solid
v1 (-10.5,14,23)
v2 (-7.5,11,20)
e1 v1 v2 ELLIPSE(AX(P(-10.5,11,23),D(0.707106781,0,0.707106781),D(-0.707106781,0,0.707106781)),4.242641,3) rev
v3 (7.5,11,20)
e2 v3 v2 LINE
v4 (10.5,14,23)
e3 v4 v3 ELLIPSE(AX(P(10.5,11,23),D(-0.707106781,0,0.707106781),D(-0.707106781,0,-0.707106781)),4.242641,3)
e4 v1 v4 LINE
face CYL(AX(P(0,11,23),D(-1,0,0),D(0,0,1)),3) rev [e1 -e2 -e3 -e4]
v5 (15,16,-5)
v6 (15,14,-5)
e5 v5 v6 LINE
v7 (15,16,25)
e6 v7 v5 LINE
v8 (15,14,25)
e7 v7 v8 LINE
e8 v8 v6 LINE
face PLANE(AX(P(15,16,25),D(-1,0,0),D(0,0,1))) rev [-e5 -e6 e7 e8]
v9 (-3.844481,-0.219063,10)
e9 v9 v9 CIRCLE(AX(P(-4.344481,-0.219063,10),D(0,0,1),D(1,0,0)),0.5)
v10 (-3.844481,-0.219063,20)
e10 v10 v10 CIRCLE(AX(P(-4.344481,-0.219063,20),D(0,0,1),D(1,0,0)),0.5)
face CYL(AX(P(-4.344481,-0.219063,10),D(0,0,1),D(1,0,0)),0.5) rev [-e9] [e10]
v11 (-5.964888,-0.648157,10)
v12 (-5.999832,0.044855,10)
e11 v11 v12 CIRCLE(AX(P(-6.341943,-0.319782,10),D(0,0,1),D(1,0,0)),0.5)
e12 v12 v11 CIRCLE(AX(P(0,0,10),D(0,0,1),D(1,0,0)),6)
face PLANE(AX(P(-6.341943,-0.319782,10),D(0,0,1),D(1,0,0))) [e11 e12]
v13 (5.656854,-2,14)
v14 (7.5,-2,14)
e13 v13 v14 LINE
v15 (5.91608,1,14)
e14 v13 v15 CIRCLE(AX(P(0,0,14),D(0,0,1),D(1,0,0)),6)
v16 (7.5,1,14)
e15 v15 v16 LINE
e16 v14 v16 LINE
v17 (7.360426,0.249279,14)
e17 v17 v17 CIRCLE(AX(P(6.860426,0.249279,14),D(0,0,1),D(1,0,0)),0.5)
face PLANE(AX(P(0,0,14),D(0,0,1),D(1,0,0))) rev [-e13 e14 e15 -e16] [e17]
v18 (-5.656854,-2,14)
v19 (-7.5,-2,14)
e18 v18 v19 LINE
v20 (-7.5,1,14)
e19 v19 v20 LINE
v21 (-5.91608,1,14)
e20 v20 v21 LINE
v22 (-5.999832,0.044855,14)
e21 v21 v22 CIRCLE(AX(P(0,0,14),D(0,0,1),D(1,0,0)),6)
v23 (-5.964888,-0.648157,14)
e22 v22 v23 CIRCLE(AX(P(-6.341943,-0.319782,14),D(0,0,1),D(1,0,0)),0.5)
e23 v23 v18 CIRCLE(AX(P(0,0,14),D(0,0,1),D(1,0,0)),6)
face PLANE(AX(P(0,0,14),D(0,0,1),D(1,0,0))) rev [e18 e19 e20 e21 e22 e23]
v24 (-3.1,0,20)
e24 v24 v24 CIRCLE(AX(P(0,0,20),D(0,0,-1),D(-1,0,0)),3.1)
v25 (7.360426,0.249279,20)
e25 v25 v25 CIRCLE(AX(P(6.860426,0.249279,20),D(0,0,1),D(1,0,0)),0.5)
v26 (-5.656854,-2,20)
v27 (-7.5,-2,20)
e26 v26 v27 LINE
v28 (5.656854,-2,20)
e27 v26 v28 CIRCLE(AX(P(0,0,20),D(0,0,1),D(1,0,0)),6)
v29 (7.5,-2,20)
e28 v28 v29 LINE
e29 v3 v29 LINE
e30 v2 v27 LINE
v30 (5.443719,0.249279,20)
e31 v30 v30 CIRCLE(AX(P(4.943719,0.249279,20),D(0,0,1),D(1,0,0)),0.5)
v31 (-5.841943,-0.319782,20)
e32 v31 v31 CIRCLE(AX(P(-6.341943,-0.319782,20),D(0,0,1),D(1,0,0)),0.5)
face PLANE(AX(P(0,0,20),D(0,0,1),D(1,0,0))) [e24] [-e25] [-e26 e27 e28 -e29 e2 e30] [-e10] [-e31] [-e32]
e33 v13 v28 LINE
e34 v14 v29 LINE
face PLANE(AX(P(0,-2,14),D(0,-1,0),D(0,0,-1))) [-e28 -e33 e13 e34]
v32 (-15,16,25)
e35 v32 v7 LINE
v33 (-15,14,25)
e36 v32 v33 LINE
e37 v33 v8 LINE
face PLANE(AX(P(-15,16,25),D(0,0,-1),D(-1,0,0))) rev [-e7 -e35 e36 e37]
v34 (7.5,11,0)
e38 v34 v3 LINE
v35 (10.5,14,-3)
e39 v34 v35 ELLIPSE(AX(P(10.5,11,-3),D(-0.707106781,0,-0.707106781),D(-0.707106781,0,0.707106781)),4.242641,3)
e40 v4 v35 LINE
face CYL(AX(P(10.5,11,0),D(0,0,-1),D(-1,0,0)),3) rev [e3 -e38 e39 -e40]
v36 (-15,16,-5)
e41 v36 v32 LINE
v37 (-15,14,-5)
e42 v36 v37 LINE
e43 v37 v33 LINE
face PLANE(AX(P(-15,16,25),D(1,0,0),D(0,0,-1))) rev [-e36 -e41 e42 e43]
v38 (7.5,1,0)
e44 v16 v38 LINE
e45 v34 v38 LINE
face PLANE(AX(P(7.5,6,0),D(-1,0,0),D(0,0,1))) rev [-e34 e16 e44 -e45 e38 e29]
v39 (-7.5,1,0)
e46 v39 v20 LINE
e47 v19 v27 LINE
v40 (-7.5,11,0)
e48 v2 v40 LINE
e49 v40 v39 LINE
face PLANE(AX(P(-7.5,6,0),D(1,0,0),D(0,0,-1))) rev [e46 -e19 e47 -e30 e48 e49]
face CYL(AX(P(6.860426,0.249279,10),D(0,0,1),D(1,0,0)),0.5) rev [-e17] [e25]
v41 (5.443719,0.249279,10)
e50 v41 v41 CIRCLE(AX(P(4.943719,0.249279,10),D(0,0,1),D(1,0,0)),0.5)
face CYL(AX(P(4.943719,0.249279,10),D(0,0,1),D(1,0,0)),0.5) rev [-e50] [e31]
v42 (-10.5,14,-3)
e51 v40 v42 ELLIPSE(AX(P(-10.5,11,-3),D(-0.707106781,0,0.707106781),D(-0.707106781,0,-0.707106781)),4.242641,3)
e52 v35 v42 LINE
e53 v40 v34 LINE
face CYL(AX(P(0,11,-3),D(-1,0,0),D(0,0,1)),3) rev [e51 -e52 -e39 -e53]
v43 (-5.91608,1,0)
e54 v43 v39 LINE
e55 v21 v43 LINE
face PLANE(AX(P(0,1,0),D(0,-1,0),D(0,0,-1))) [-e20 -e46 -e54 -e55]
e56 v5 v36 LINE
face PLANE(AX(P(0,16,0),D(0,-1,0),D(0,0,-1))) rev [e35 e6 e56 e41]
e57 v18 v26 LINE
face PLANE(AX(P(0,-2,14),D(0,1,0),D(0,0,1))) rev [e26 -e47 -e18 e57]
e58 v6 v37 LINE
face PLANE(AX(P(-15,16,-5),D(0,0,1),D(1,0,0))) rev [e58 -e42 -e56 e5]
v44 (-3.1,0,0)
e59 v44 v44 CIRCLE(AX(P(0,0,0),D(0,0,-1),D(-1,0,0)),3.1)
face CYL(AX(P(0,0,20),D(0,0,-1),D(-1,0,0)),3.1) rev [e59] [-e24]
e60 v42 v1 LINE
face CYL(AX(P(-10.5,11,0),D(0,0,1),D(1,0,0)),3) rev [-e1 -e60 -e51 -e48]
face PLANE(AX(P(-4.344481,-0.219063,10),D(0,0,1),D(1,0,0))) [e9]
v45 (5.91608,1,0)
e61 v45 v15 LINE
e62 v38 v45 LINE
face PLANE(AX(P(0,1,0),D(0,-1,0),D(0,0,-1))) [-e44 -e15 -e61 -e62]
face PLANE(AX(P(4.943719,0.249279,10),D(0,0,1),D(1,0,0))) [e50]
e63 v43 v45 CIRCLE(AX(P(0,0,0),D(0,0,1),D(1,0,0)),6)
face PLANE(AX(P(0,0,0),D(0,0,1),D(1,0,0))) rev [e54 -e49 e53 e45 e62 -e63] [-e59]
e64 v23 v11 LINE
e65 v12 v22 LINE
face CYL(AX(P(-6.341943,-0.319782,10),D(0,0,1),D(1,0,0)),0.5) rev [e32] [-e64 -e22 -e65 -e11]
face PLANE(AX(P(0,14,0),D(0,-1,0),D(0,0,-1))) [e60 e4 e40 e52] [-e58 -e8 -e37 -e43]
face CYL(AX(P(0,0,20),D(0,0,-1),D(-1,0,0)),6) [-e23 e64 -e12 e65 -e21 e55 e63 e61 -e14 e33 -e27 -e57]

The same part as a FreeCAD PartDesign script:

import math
import FreeCAD as App
import Part
import Sketcher
from FreeCAD import Vector
Q = App.Units.Quantity


def edges_at(feature, points):
    """Names of the edges that pass closest to the given points."""
    edges = feature.Shape.Edges
    near = lambda p: min(range(len(edges)), key=lambda i: edges[i].distToShape(Part.Vertex(*p))[0])
    return sorted({f"Edge{near(p) + 1}" for p in points})

doc = App.newDocument("Part")
params = doc.addObject("Spreadsheet::Sheet", "Params")
for row, (alias, value) in enumerate([
    ("sketch1_diameter", "12 mm"),
    ("pad1_length", "20 mm"),
    ("sketch2_width", "15 mm"),
    ("sketch2_height", "20 mm"),
    ("pad2_length", "5 mm"),
    ("sketch3_diameter", "6.2 mm"),
    ("sketch4_radius", "6 mm"),
    ("sketch4_height", "3 mm"),
    ("pad3_length", "6 mm"),
    ("sketch5_diameter", "1 mm"),
    ("pocket2_length", "10 mm"),
    ("sketch6_width", "15 mm"),
    ("sketch6_height", "20 mm"),
    ("pad4_length", "8 mm"),
    ("sketch7_width", "30 mm"),
    ("pad5_length", "2 mm"),
    ("fillet_radius", "3 mm"),
], start=1):
    params.set(f"A{row}", alias)
    params.set(f"B{row}", "=" + value)
    params.setAlias(f"B{row}", alias)

body = doc.addObject("PartDesign::Body", "Body")

# Sketch on XY plane
sketch1 = doc.addObject("Sketcher::SketchObject", "Sketch")
body.addObject(sketch1)
sketch1.AttachmentSupport = (doc.XY_Plane, [""])
sketch1.MapMode = "FlatFace"
sketch1.addGeometry(Part.Circle(Vector(0, 0, 0), Vector(0, 0, 1), 6), False)
sketch1.addConstraint(Sketcher.Constraint("Coincident", 0, 3, -1, 1))
sketch1.addConstraint(Sketcher.Constraint("Diameter", 0, Q("12 mm")))
sketch1.setExpression("Constraints[1]", "Params.sketch1_diameter")
pad1 = doc.addObject("PartDesign::Pad", "Pad")
body.addObject(pad1)
pad1.Profile = sketch1
pad1.setExpression("Length", "Params.pad1_length")

# Sketch on XZ plane
sketch2 = doc.addObject("Sketcher::SketchObject", "Sketch001")
body.addObject(sketch2)
sketch2.AttachmentSupport = (doc.XZ_Plane, [""])
sketch2.MapMode = "FlatFace"
sketch2.AttachmentOffset = App.Placement(Vector(0, 0, -1), App.Rotation())
sketch2.addGeometry(Part.LineSegment(Vector(-8, 0, 0), Vector(-8, 20, 0)), False)
sketch2.addGeometry(Part.LineSegment(Vector(-8, 20, 0), Vector(8, 20, 0)), False)
sketch2.addGeometry(Part.LineSegment(Vector(8, 20, 0), Vector(8, 0, 0)), False)
sketch2.addGeometry(Part.LineSegment(Vector(8, 0, 0), Vector(-8, 0, 0)), False)
sketch2.addConstraint(Sketcher.Constraint("Coincident", 0, 2, 1, 1))
sketch2.addConstraint(Sketcher.Constraint("Coincident", 1, 2, 2, 1))
sketch2.addConstraint(Sketcher.Constraint("Coincident", 2, 2, 3, 1))
sketch2.addConstraint(Sketcher.Constraint("Coincident", 3, 2, 0, 1))
sketch2.addConstraint(Sketcher.Constraint("Vertical", 0))
sketch2.addConstraint(Sketcher.Constraint("Horizontal", 1))
sketch2.addConstraint(Sketcher.Constraint("Vertical", 2))
sketch2.addConstraint(Sketcher.Constraint("Horizontal", 3))
sketch2.addConstraint(Sketcher.Constraint("Symmetric", 2, 2, 3, 2, -1, 1))
sketch2.addConstraint(Sketcher.Constraint("DistanceX", 1, 1, 1, 2, Q("15 mm")))
sketch2.addConstraint(Sketcher.Constraint("DistanceY", 0, 1, 0, 2, Q("20 mm")))
sketch2.setExpression("Constraints[9]", "Params.sketch2_width")
sketch2.setExpression("Constraints[10]", "Params.sketch2_height")
pad2 = doc.addObject("PartDesign::Pad", "Pad001")
body.addObject(pad2)
pad2.Profile = sketch2
pad2.setExpression("Length", "Params.pad2_length")
pad2.Reversed = True

# Sketch on XY plane
sketch3 = doc.addObject("Sketcher::SketchObject", "Sketch002")
body.addObject(sketch3)
sketch3.AttachmentSupport = (doc.XY_Plane, [""])
sketch3.MapMode = "FlatFace"
sketch3.addGeometry(Part.Circle(Vector(0, 0, 0), Vector(0, 0, 1), 3.1), False)
sketch3.addConstraint(Sketcher.Constraint("Coincident", 0, 3, -1, 1))
sketch3.addConstraint(Sketcher.Constraint("Diameter", 0, Q("6.2 mm")))
sketch3.setExpression("Constraints[1]", "Params.sketch3_diameter")
pocket1 = doc.addObject("PartDesign::Pocket", "Pocket")
body.addObject(pocket1)
pocket1.Profile = sketch3
pocket1.Type = "ThroughAll"
pocket1.Reversed = True

# Sketch on XY plane
sketch4 = doc.addObject("Sketcher::SketchObject", "Sketch003")
body.addObject(sketch4)
sketch4.AttachmentSupport = (doc.XY_Plane, [""])
sketch4.MapMode = "FlatFace"
sketch4.AttachmentOffset = App.Placement(Vector(0, 0, 14), App.Rotation())
sketch4.addGeometry(Part.ArcOfCircle(Part.Circle(Vector(0, 0, 0), Vector(0, 0, 1), 6), math.radians(-19), math.radians(10)), False)
sketch4.addGeometry(Part.LineSegment(Vector(5.7, -2, 0), Vector(7.5, -2, 0)), False)
sketch4.addGeometry(Part.LineSegment(Vector(7.5, -2, 0), Vector(7.5, 1, 0)), False)
sketch4.addGeometry(Part.LineSegment(Vector(7.5, 1, 0), Vector(5.9, 1, 0)), False)
sketch4.addGeometry(Part.LineSegment(Vector(-7.5, -2, 0), Vector(-5.7, -2, 0)), False)
sketch4.addGeometry(Part.ArcOfCircle(Part.Circle(Vector(0, 0, 0), Vector(0, 0, 1), 6), math.radians(170), math.radians(199)), False)
sketch4.addGeometry(Part.LineSegment(Vector(-5.9, 1, 0), Vector(-7.5, 1, 0)), False)
sketch4.addGeometry(Part.LineSegment(Vector(-7.5, 1, 0), Vector(-7.5, -2, 0)), False)
sketch4.addConstraint(Sketcher.Constraint("Coincident", 0, 1, 1, 1))
sketch4.addConstraint(Sketcher.Constraint("Coincident", 1, 2, 2, 1))
sketch4.addConstraint(Sketcher.Constraint("Coincident", 2, 2, 3, 1))
sketch4.addConstraint(Sketcher.Constraint("Coincident", 3, 2, 0, 2))
sketch4.addConstraint(Sketcher.Constraint("Coincident", 4, 2, 5, 2))
sketch4.addConstraint(Sketcher.Constraint("Coincident", 5, 1, 6, 1))
sketch4.addConstraint(Sketcher.Constraint("Coincident", 6, 2, 7, 1))
sketch4.addConstraint(Sketcher.Constraint("Coincident", 7, 2, 4, 1))
sketch4.addConstraint(Sketcher.Constraint("Horizontal", 1))
sketch4.addConstraint(Sketcher.Constraint("Vertical", 2))
sketch4.addConstraint(Sketcher.Constraint("Horizontal", 3))
sketch4.addConstraint(Sketcher.Constraint("Horizontal", 4))
sketch4.addConstraint(Sketcher.Constraint("Horizontal", 6))
sketch4.addConstraint(Sketcher.Constraint("Vertical", 7))
sketch4.addConstraint(Sketcher.Constraint("Coincident", 0, 3, -1, 1))
sketch4.addConstraint(Sketcher.Constraint("Coincident", 5, 3, -1, 1))
sketch4.addConstraint(Sketcher.Constraint("Equal", 0, 5))
sketch4.addConstraint(Sketcher.Constraint("Symmetric", 2, 2, 6, 2, -2))
sketch4.addConstraint(Sketcher.Constraint("Horizontal", 1, 2, 4, 2))
sketch4.addConstraint(Sketcher.Constraint("Radius", 0, Q("6 mm")))
sketch4.addConstraint(Sketcher.Constraint("DistanceY", 2, 1, 2, 2, Q("3 mm")))
sketch4.addConstraint(Sketcher.Constraint("DistanceY", 0, 1, -1, 1, Q("2 mm")))
sketch4.addConstraint(Sketcher.Constraint("DistanceX", -1, 1, 1, 2, Q("7.5 mm")))
sketch4.setExpression("Constraints[19]", "Params.sketch4_radius")
sketch4.setExpression("Constraints[20]", "Params.sketch4_height")
pad3 = doc.addObject("PartDesign::Pad", "Pad002")
body.addObject(pad3)
pad3.Profile = sketch4
pad3.setExpression("Length", "Params.pad3_length")

# Sketch on XY plane
sketch5 = doc.addObject("Sketcher::SketchObject", "Sketch004")
body.addObject(sketch5)
sketch5.AttachmentSupport = (doc.XY_Plane, [""])
sketch5.MapMode = "FlatFace"
sketch5.AttachmentOffset = App.Placement(Vector(0, 0, 20), App.Rotation())
sketch5.addGeometry(Part.Circle(Vector(-6.3, -0.3, 0), Vector(0, 0, 1), 0.5), False)
sketch5.addGeometry(Part.Circle(Vector(-4.3, -0.2, 0), Vector(0, 0, 1), 0.5), False)
sketch5.addGeometry(Part.Circle(Vector(4.9, 0.2, 0), Vector(0, 0, 1), 0.5), False)
sketch5.addGeometry(Part.Circle(Vector(6.9, 0.2, 0), Vector(0, 0, 1), 0.5), False)
sketch5.addConstraint(Sketcher.Constraint("Equal", 0, 1))
sketch5.addConstraint(Sketcher.Constraint("Equal", 1, 2))
sketch5.addConstraint(Sketcher.Constraint("Equal", 2, 3))
sketch5.addConstraint(Sketcher.Constraint("Horizontal", 2, 3, 3, 3))
sketch5.addConstraint(Sketcher.Constraint("Diameter", 0, Q("1 mm")))
sketch5.addConstraint(Sketcher.Constraint("DistanceX", 1, 3, 2, 3, Q("9.2882 mm")))
sketch5.addConstraint(Sketcher.Constraint("DistanceX", 1, 3, -1, 1, Q("4.344481 mm")))
sketch5.addConstraint(Sketcher.Constraint("DistanceY", -1, 1, 2, 3, Q("0.249279 mm")))
sketch5.addConstraint(Sketcher.Constraint("DistanceY", 0, 3, 1, 3, Q("0.100719 mm")))
sketch5.addConstraint(Sketcher.Constraint("DistanceY", 0, 3, 2, 3, Q("0.569061 mm")))
sketch5.addConstraint(Sketcher.Constraint("DistanceX", 0, 3, 3, 3, Q("13.202369 mm")))
sketch5.addConstraint(Sketcher.Constraint("DistanceX", 0, 3, -1, 1, Q("6.341943 mm")))
sketch5.setExpression("Constraints[4]", "Params.sketch5_diameter")
pocket2 = doc.addObject("PartDesign::Pocket", "Pocket001")
body.addObject(pocket2)
pocket2.Profile = sketch5
pocket2.setExpression("Length", "Params.pocket2_length")

# Sketch on XZ plane
sketch6 = doc.addObject("Sketcher::SketchObject", "Sketch005")
body.addObject(sketch6)
sketch6.AttachmentSupport = (doc.XZ_Plane, [""])
sketch6.MapMode = "FlatFace"
sketch6.AttachmentOffset = App.Placement(Vector(0, 0, -6), App.Rotation())
sketch6.addGeometry(Part.LineSegment(Vector(-8, 0, 0), Vector(-8, 20, 0)), False)
sketch6.addGeometry(Part.LineSegment(Vector(-8, 20, 0), Vector(8, 20, 0)), False)
sketch6.addGeometry(Part.LineSegment(Vector(8, 20, 0), Vector(8, 0, 0)), False)
sketch6.addGeometry(Part.LineSegment(Vector(8, 0, 0), Vector(-8, 0, 0)), False)
sketch6.addConstraint(Sketcher.Constraint("Coincident", 0, 2, 1, 1))
sketch6.addConstraint(Sketcher.Constraint("Coincident", 1, 2, 2, 1))
sketch6.addConstraint(Sketcher.Constraint("Coincident", 2, 2, 3, 1))
sketch6.addConstraint(Sketcher.Constraint("Coincident", 3, 2, 0, 1))
sketch6.addConstraint(Sketcher.Constraint("Vertical", 0))
sketch6.addConstraint(Sketcher.Constraint("Horizontal", 1))
sketch6.addConstraint(Sketcher.Constraint("Vertical", 2))
sketch6.addConstraint(Sketcher.Constraint("Horizontal", 3))
sketch6.addConstraint(Sketcher.Constraint("Symmetric", 2, 2, 3, 2, -1, 1))
sketch6.addConstraint(Sketcher.Constraint("DistanceX", 1, 1, 1, 2, Q("15 mm")))
sketch6.addConstraint(Sketcher.Constraint("DistanceY", 0, 1, 0, 2, Q("20 mm")))
sketch6.setExpression("Constraints[9]", "Params.sketch6_width")
sketch6.setExpression("Constraints[10]", "Params.sketch6_height")
pad4 = doc.addObject("PartDesign::Pad", "Pad003")
body.addObject(pad4)
pad4.Profile = sketch6
pad4.setExpression("Length", "Params.pad4_length")
pad4.Reversed = True

# Sketch on XZ plane
sketch7 = doc.addObject("Sketcher::SketchObject", "Sketch006")
body.addObject(sketch7)
sketch7.AttachmentSupport = (doc.XZ_Plane, [""])
sketch7.MapMode = "FlatFace"
sketch7.AttachmentOffset = App.Placement(Vector(0, 0, -14), App.Rotation())
sketch7.addGeometry(Part.LineSegment(Vector(-15, -5, 0), Vector(-15, 25, 0)), False)
sketch7.addGeometry(Part.LineSegment(Vector(-15, 25, 0), Vector(15, 25, 0)), False)
sketch7.addGeometry(Part.LineSegment(Vector(15, 25, 0), Vector(15, -5, 0)), False)
sketch7.addGeometry(Part.LineSegment(Vector(15, -5, 0), Vector(-15, -5, 0)), False)
sketch7.addConstraint(Sketcher.Constraint("Coincident", 0, 2, 1, 1))
sketch7.addConstraint(Sketcher.Constraint("Coincident", 1, 2, 2, 1))
sketch7.addConstraint(Sketcher.Constraint("Coincident", 2, 2, 3, 1))
sketch7.addConstraint(Sketcher.Constraint("Coincident", 3, 2, 0, 1))
sketch7.addConstraint(Sketcher.Constraint("Vertical", 0))
sketch7.addConstraint(Sketcher.Constraint("Horizontal", 1))
sketch7.addConstraint(Sketcher.Constraint("Vertical", 2))
sketch7.addConstraint(Sketcher.Constraint("Horizontal", 3))
sketch7.addConstraint(Sketcher.Constraint("Equal", 3, 0))
sketch7.addConstraint(Sketcher.Constraint("DistanceX", 1, 1, 1, 2, Q("30 mm")))
sketch7.addConstraint(Sketcher.Constraint("DistanceX", 0, 2, -1, 1, Q("15 mm")))
sketch7.addConstraint(Sketcher.Constraint("DistanceY", -1, 1, 0, 2, Q("25 mm")))
sketch7.setExpression("Constraints[9]", "Params.sketch7_width")
pad5 = doc.addObject("PartDesign::Pad", "Pad004")
body.addObject(pad5)
pad5.Profile = sketch7
pad5.setExpression("Length", "Params.pad5_length")
pad5.Reversed = True
doc.recompute()

fillet = doc.addObject("PartDesign::Fillet", "Fillet")
body.addObject(fillet)
fillet.Base = (pad5, edges_at(pad5, [
    (0, 14, 0),
    (-7.5, 14, 10),
    (0, 14, 20),
    (7.5, 14, 10),
]))
fillet.setExpression("Radius", "Params.fillet_radius")

doc.recompute()
